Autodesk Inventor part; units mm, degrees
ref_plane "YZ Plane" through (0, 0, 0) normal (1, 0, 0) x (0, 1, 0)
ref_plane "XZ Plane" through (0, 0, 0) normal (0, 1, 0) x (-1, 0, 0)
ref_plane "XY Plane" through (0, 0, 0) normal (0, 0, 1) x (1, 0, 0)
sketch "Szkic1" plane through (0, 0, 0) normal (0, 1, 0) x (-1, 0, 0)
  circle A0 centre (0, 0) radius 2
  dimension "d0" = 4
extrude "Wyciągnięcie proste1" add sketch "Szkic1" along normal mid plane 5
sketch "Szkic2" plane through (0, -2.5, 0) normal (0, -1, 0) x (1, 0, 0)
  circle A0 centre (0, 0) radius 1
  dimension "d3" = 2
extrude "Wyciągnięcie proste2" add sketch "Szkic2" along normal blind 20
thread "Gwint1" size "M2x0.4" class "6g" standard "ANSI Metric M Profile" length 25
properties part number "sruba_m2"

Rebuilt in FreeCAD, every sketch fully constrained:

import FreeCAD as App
import Part
import Sketcher

doc = App.newDocument("Part")
params = doc.addObject("Spreadsheet::Sheet", "Params")
for row, (alias, value) in enumerate([
    ("sketch1_diameter", "4 mm"),
    ("pad1_length", "5 mm"),
    ("sketch2_diameter", "2 mm"),
    ("pad2_length", "20 mm"),
], start=1):
    params.set(f"A{row}", alias)
    params.set(f"B{row}", "=" + value)
    params.setAlias(f"B{row}", alias)

body = doc.addObject("PartDesign::Body", "Body")

# Sketch on XZ plane
sketch1 = doc.addObject("Sketcher::SketchObject", "Sketch")
body.addObject(sketch1)
sketch1.AttachmentSupport = (doc.XZ_Plane, [""])
sketch1.MapMode = "FlatFace"
sketch1.addGeometry(Part.Circle(App.Vector(0, 0, 0), App.Vector(0, 0, 1), 2), False)
sketch1.addConstraint([
    Sketcher.Constraint("Coincident", 0, 3, -1, 1),
    Sketcher.Constraint("Diameter", 0, 4.0),
])
sketch1.setExpression("Constraints[1]", "Params.sketch1_diameter")
pad1 = doc.addObject("PartDesign::Pad", "Pad")
body.addObject(pad1)
pad1.Profile = sketch1
pad1.setExpression("Length", "Params.pad1_length")
pad1.Midplane = True

# Sketch on XZ plane
sketch2 = doc.addObject("Sketcher::SketchObject", "Sketch001")
body.addObject(sketch2)
sketch2.AttachmentSupport = (doc.XZ_Plane, [""])
sketch2.MapMode = "FlatFace"
sketch2.AttachmentOffset = App.Placement(App.Vector(0, 0, 2.5), App.Rotation())
sketch2.addGeometry(Part.Circle(App.Vector(0, 0, 0), App.Vector(0, 0, 1), 1), False)
sketch2.addConstraint([
    Sketcher.Constraint("Coincident", 0, 3, -1, 1),
    Sketcher.Constraint("Diameter", 0, 2.0),
])
sketch2.setExpression("Constraints[1]", "Params.sketch2_diameter")
pad2 = doc.addObject("PartDesign::Pad", "Pad001")
body.addObject(pad2)
pad2.Profile = sketch2
pad2.setExpression("Length", "Params.pad2_length")

doc.recompute()
